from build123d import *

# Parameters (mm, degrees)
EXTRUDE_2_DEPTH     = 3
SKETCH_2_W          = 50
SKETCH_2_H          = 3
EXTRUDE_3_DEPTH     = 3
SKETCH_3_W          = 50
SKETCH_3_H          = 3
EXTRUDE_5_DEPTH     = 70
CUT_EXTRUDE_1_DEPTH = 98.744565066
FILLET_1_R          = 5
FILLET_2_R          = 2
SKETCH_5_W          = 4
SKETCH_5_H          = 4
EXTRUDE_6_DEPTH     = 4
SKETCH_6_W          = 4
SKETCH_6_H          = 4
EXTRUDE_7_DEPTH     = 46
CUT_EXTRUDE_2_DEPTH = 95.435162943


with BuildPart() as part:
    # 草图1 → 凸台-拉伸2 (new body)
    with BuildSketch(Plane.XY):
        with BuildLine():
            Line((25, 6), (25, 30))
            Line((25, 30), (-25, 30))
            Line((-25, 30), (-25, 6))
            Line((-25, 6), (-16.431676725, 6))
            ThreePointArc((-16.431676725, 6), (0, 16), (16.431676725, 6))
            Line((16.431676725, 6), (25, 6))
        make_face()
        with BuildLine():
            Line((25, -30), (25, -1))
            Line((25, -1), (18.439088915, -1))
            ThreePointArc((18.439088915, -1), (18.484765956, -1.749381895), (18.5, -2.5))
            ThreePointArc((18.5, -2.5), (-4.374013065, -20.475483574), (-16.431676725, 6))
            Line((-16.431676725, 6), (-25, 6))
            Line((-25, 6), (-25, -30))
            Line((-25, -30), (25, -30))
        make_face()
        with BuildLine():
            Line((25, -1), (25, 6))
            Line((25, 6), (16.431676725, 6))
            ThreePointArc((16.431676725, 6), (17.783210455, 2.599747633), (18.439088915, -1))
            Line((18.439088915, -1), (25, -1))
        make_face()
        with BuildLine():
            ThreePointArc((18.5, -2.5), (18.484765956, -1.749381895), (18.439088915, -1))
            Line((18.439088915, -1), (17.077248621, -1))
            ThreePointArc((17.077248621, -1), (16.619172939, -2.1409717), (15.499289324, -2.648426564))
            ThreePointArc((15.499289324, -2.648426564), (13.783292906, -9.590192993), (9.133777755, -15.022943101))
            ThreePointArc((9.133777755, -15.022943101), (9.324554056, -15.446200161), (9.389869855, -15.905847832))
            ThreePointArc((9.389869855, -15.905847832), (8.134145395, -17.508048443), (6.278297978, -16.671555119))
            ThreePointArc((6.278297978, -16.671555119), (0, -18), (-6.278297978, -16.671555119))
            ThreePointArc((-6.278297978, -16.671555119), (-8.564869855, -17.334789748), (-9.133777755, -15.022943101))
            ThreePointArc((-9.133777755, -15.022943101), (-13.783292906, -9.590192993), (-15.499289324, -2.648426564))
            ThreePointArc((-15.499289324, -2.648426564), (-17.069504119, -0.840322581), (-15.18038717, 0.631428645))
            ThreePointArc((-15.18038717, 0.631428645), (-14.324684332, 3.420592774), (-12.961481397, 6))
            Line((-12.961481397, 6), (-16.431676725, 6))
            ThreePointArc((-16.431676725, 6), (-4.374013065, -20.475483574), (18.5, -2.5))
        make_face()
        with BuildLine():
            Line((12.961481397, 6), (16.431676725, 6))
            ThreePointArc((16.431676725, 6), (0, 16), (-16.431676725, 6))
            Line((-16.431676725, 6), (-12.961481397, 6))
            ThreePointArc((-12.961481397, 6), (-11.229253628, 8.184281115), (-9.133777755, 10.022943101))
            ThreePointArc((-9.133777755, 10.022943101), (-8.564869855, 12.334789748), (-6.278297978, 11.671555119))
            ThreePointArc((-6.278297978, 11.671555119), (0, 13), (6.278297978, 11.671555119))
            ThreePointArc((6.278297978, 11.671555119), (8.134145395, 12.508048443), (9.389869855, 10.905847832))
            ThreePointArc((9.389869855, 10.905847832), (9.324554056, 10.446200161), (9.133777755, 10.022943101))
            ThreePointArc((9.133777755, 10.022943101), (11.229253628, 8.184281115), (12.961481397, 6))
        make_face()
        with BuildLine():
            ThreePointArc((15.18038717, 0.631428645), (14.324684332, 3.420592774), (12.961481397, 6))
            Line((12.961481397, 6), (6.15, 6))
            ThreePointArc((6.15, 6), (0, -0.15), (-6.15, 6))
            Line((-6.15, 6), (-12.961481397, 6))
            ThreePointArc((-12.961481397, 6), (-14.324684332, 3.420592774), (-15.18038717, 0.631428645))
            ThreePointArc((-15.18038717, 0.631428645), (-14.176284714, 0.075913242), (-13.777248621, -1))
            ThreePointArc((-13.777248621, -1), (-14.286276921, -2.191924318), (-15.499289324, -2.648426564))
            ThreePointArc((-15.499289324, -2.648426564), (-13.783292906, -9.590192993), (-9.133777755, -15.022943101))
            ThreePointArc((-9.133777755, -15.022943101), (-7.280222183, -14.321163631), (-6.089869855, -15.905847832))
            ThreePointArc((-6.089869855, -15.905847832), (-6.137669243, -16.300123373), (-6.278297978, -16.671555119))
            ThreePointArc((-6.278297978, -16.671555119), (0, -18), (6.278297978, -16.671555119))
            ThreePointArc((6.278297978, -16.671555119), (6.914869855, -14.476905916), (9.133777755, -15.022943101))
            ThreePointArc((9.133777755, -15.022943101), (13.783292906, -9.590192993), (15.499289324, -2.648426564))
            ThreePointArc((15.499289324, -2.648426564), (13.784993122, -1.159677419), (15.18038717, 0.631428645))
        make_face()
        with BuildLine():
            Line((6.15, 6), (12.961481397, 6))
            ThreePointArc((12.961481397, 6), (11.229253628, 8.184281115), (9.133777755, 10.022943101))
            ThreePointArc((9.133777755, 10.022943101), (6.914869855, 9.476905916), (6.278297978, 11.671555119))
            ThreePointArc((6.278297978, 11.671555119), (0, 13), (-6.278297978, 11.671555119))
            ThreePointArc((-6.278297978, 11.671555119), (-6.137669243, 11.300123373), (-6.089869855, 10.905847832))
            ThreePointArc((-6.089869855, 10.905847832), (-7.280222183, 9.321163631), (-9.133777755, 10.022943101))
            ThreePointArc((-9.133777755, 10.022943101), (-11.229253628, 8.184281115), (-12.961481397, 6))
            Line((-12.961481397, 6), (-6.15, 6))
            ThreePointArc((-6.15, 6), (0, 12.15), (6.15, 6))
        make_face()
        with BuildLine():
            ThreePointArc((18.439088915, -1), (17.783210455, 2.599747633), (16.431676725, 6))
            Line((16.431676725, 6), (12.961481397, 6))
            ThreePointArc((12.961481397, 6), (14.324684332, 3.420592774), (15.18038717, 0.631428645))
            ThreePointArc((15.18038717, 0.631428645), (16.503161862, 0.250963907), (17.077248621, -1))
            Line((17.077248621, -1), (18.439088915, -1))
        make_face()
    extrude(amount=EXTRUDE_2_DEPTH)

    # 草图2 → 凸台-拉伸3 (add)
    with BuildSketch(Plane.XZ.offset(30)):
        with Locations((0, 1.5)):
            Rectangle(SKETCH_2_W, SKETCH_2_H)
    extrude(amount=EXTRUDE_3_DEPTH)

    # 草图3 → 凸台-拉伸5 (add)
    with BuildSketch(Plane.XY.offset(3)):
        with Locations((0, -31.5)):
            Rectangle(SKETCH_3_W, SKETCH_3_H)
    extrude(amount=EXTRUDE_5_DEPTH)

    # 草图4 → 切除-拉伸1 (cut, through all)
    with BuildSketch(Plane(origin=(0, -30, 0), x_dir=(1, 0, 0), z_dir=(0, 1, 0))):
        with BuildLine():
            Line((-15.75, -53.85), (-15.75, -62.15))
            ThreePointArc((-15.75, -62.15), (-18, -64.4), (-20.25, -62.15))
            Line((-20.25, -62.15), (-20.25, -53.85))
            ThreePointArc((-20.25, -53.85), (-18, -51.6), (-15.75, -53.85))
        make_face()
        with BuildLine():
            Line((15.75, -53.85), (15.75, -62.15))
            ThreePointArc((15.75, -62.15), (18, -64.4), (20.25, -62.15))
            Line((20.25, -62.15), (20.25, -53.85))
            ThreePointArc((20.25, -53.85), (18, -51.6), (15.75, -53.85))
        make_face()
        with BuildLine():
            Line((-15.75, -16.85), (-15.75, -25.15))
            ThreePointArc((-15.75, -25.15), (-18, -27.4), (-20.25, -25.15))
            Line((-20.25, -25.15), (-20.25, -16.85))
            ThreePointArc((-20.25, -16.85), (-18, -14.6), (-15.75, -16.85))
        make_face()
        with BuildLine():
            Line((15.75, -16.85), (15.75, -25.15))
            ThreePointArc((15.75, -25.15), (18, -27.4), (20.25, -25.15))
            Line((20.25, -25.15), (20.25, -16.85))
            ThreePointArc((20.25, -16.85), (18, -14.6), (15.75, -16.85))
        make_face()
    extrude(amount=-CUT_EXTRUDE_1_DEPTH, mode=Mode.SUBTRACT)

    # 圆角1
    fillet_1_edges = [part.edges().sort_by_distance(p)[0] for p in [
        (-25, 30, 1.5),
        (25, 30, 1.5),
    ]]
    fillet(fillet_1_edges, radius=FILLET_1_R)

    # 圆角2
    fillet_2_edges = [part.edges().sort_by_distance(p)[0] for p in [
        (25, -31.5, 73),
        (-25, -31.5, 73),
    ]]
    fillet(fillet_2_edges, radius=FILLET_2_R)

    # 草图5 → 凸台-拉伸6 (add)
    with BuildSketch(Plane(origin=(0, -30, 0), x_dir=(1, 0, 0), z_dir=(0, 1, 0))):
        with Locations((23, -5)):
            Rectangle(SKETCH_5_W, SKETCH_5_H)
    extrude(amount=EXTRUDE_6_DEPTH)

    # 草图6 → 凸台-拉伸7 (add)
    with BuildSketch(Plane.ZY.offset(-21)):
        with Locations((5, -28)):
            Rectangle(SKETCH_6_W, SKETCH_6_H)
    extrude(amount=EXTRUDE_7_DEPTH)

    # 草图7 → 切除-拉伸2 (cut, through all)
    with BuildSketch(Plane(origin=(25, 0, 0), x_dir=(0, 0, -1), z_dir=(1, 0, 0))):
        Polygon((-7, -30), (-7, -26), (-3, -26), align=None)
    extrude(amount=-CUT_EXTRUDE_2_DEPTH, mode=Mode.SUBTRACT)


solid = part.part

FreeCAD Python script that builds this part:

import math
import FreeCAD as App
import Part
import Sketcher


def edges_at(feature, points):
    """Names of the edges that pass closest to the given points."""
    edges = feature.Shape.Edges
    near = lambda p: min(range(len(edges)), key=lambda i: edges[i].distToShape(Part.Vertex(*p))[0])
    return sorted({f"Edge{near(p) + 1}" for p in points})


def add_polygon(sketch, points):
    """Adds a closed chain of lines whose ends are joined by coincident constraints."""
    first, n = sketch.GeometryCount, len(points)
    for a, b in zip(points, points[1:] + points[:1]):
        sketch.addGeometry(Part.LineSegment(App.Vector(*a, 0), App.Vector(*b, 0)), False)
    for i in range(n):
        sketch.addConstraint(Sketcher.Constraint("Coincident", first + i, 2, first + (i + 1) % n, 1))

doc = App.newDocument("Part")
body = doc.addObject("PartDesign::Body", "Body")

sketch1 = doc.addObject("Sketcher::SketchObject", "Sketch")
body.addObject(sketch1)
sketch1.AttachmentSupport = (doc.XY_Plane, [""])
sketch1.MapMode = "FlatFace"
add_polygon(sketch1, [(25, 30), (-25, 30), (-25, -30), (25, -30)])
sketch1.addGeometry(Part.ArcOfCircle(Part.Circle(App.Vector(-7.73987, -15.905848, 0), App.Vector(0, 0, 1), 1.65), math.radians(147.649729), math.radians(332.350271)), False)
sketch1.addGeometry(Part.ArcOfCircle(Part.Circle(App.Vector(-7.73987, -15.905848, 0), App.Vector(0, 0, 1), 1.65), math.radians(0), math.radians(147.649729)), False)
sketch1.addGeometry(Part.ArcOfCircle(Part.Circle(App.Vector(-7.73987, -15.905848, 0), App.Vector(0, 0, 1), 1.65), math.radians(-27.649729), math.radians(0)), False)
sketch1.addGeometry(Part.ArcOfCircle(Part.Circle(App.Vector(7.73987, -15.905848, 0), App.Vector(0, 0, 1), 1.65), math.radians(0), math.radians(32.350271)), False)
sketch1.addGeometry(Part.ArcOfCircle(Part.Circle(App.Vector(7.73987, -15.905848, 0), App.Vector(0, 0, 1), 1.65), math.radians(-152.350271), math.radians(0)), False)
sketch1.addGeometry(Part.ArcOfCircle(Part.Circle(App.Vector(7.73987, -15.905848, 0), App.Vector(0, 0, 1), 1.65), math.radians(32.350271), math.radians(207.649729)), False)
sketch1.addGeometry(Part.ArcOfCircle(Part.Circle(App.Vector(-15.427249, -1, 0), App.Vector(0, 0, 1), 1.65), math.radians(81.3955), math.radians(267.497612)), False)
sketch1.addGeometry(Part.ArcOfCircle(Part.Circle(App.Vector(-15.427249, -1, 0), App.Vector(0, 0, 1), 1.65), math.radians(0), math.radians(81.3955)), False)
sketch1.addGeometry(Part.ArcOfCircle(Part.Circle(App.Vector(-15.427249, -1, 0), App.Vector(0, 0, 1), 1.65), math.radians(-92.502388), math.radians(0)), False)
sketch1.addGeometry(Part.ArcOfCircle(Part.Circle(App.Vector(7.73987, 10.905848, 0), App.Vector(0, 0, 1), 1.65), math.radians(-32.350271), math.radians(0)), False)
sketch1.addGeometry(Part.ArcOfCircle(Part.Circle(App.Vector(7.73987, 10.905848, 0), App.Vector(0, 0, 1), 1.65), math.radians(152.350271), math.radians(327.649729)), False)
sketch1.addGeometry(Part.ArcOfCircle(Part.Circle(App.Vector(7.73987, 10.905848, 0), App.Vector(0, 0, 1), 1.65), math.radians(0), math.radians(152.350271)), False)
sketch1.addGeometry(Part.ArcOfCircle(Part.Circle(App.Vector(-7.73987, 10.905848, 0), App.Vector(0, 0, 1), 1.65), math.radians(27.649729), math.radians(212.350271)), False)
sketch1.addGeometry(Part.ArcOfCircle(Part.Circle(App.Vector(-7.73987, 10.905848, 0), App.Vector(0, 0, 1), 1.65), math.radians(0), math.radians(27.649729)), False)
sketch1.addGeometry(Part.ArcOfCircle(Part.Circle(App.Vector(-7.73987, 10.905848, 0), App.Vector(0, 0, 1), 1.65), math.radians(-147.649729), math.radians(0)), False)
sketch1.addGeometry(Part.Circle(App.Vector(0, 6, 0), App.Vector(0, 0, 1), 6.15), False)
sketch1.addGeometry(Part.ArcOfCircle(Part.Circle(App.Vector(15.427249, -1, 0), App.Vector(0, 0, 1), 1.65), math.radians(-87.497612), math.radians(0)), False)
sketch1.addGeometry(Part.ArcOfCircle(Part.Circle(App.Vector(15.427249, -1, 0), App.Vector(0, 0, 1), 1.65), math.radians(98.6045), math.radians(272.502388)), False)
sketch1.addGeometry(Part.ArcOfCircle(Part.Circle(App.Vector(15.427249, -1, 0), App.Vector(0, 0, 1), 1.65), math.radians(0), math.radians(98.6045)), False)
sketch1.addConstraint(Sketcher.Constraint("Tangent", 4, 1, 5, 2))
sketch1.addConstraint(Sketcher.Constraint("Tangent", 5, 1, 6, 2))
sketch1.addConstraint(Sketcher.Constraint("Tangent", 6, 1, 4, 2))
sketch1.addConstraint(Sketcher.Constraint("Tangent", 7, 1, 8, 2))
sketch1.addConstraint(Sketcher.Constraint("Tangent", 8, 1, 9, 2))
sketch1.addConstraint(Sketcher.Constraint("Tangent", 9, 1, 7, 2))
sketch1.addConstraint(Sketcher.Constraint("Tangent", 10, 1, 11, 2))
sketch1.addConstraint(Sketcher.Constraint("Tangent", 11, 1, 12, 2))
sketch1.addConstraint(Sketcher.Constraint("Tangent", 12, 1, 10, 2))
sketch1.addConstraint(Sketcher.Constraint("Tangent", 13, 1, 14, 2))
sketch1.addConstraint(Sketcher.Constraint("Tangent", 14, 1, 15, 2))
sketch1.addConstraint(Sketcher.Constraint("Tangent", 15, 1, 13, 2))
sketch1.addConstraint(Sketcher.Constraint("Tangent", 16, 1, 17, 2))
sketch1.addConstraint(Sketcher.Constraint("Tangent", 17, 1, 18, 2))
sketch1.addConstraint(Sketcher.Constraint("Tangent", 18, 1, 16, 2))
sketch1.addConstraint(Sketcher.Constraint("Tangent", 20, 1, 21, 2))
sketch1.addConstraint(Sketcher.Constraint("Tangent", 21, 1, 22, 2))
sketch1.addConstraint(Sketcher.Constraint("Tangent", 22, 1, 20, 2))
sketch1.addConstraint(Sketcher.Constraint("Horizontal", 0))
sketch1.addConstraint(Sketcher.Constraint("Vertical", 1))
sketch1.addConstraint(Sketcher.Constraint("Horizontal", 2))
sketch1.addConstraint(Sketcher.Constraint("Vertical", 3))
sketch1.addConstraint(Sketcher.Constraint("Equal", 6, 7))
sketch1.addConstraint(Sketcher.Constraint("Equal", 9, 10))
sketch1.addConstraint(Sketcher.Constraint("Equal", 12, 13))
sketch1.addConstraint(Sketcher.Constraint("Equal", 15, 16))
sketch1.addConstraint(Sketcher.Constraint("Equal", 18, 20))
sketch1.addConstraint(Sketcher.Constraint("Symmetric", 0, 2, 2, 2, -1, 1))
sketch1.addConstraint(Sketcher.Constraint("Symmetric", 4, 3, 7, 3, -2))
sketch1.addConstraint(Sketcher.Constraint("Symmetric", 13, 3, 16, 3, -2))
sketch1.addConstraint(Sketcher.Constraint("Symmetric", 10, 3, 20, 3, -2))
sketch1.addConstraint(Sketcher.Constraint("PointOnObject", 19, 3, -2))
sketch1.addConstraint(Sketcher.Constraint("Horizontal", 9, 3, 5, 1))
sketch1.addConstraint(Sketcher.Constraint("Horizontal", 5, 1, 7, 1))
sketch1.addConstraint(Sketcher.Constraint("Horizontal", 6, 1, 8, 1))
sketch1.addConstraint(Sketcher.Constraint("Horizontal", 4, 1, 9, 1))
sketch1.addConstraint(Sketcher.Constraint("Horizontal", 22, 3, 11, 1))
sketch1.addConstraint(Sketcher.Constraint("Horizontal", 18, 3, 15, 1))
sketch1.addConstraint(Sketcher.Constraint("Horizontal", 14, 1, 16, 1))
sketch1.addConstraint(Sketcher.Constraint("Horizontal", 15, 1, 17, 1))
sketch1.addConstraint(Sketcher.Constraint("Horizontal", 13, 1, 18, 1))
sketch1.addConstraint(Sketcher.Constraint("Horizontal", 12, 1, 20, 1))
sketch1.addConstraint(Sketcher.Constraint("Horizontal", 10, 1, 21, 1))
sketch1.addConstraint(Sketcher.Constraint("Horizontal", 11, 1, 22, 1))
sketch1.addConstraint(Sketcher.Constraint("Vertical", 9, 3, 13, 3))
sketch1.addConstraint(Sketcher.Constraint("Vertical", 9, 1, 13, 1))
sketch1.addConstraint(Sketcher.Constraint("Vertical", 8, 1, 14, 1))
sketch1.addConstraint(Sketcher.Constraint("Diameter", 19, 12.3))
sketch1.addConstraint(Sketcher.Constraint("DistanceX", 0, 2, 0, 1, 50.0))
sketch1.addConstraint(Sketcher.Constraint("DistanceY", 1, 2, 1, 1, 60.0))
sketch1.addConstraint(Sketcher.Constraint("Radius", 4, 1.65))
sketch1.addConstraint(Sketcher.Constraint("DistanceY", 10, 3, -1, 1, 1.0))
sketch1.addConstraint(Sketcher.Constraint("DistanceY", -1, 1, 19, 3, 6.0))
sketch1.addConstraint(Sketcher.Constraint("DistanceX", 4, 3, -1, 1, 7.73987))
sketch1.addConstraint(Sketcher.Constraint("DistanceX", 10, 3, -1, 1, 15.427249))
sketch1.addConstraint(Sketcher.Constraint("DistanceY", -1, 1, 10, 1, 0.631429))
sketch1.addConstraint(Sketcher.Constraint("DistanceX", 12, 1, -1, 1, 15.499289))
sketch1.addConstraint(Sketcher.Constraint("DistanceX", 10, 3, 4, 1, 6.293471))
sketch1.addConstraint(Sketcher.Constraint("DistanceX", 6, 1, 5, 1, 0.188428))
sketch1.addConstraint(Sketcher.Constraint("DistanceY", 10, 1, 16, 3, 10.274419))
sketch1.addConstraint(Sketcher.Constraint("DistanceY", 4, 3, -1, 1, 15.905848))
pad1 = doc.addObject("PartDesign::Pad", "Pad")
body.addObject(pad1)
pad1.Profile = sketch1
pad1.Length = 3

sketch2 = doc.addObject("Sketcher::SketchObject", "Sketch001")
body.addObject(sketch2)
sketch2.AttachmentSupport = (doc.XZ_Plane, [""])
sketch2.MapMode = "FlatFace"
sketch2.AttachmentOffset = App.Placement(App.Vector(0, 0, 30), App.Rotation())
add_polygon(sketch2, [(-25, 3), (-25, 0), (25, 0), (25, 3)])
sketch2.addConstraint(Sketcher.Constraint("Vertical", 0))
sketch2.addConstraint(Sketcher.Constraint("Horizontal", 1))
sketch2.addConstraint(Sketcher.Constraint("Vertical", 2))
sketch2.addConstraint(Sketcher.Constraint("Horizontal", 3))
sketch2.addConstraint(Sketcher.Constraint("Symmetric", 0, 2, 1, 2, -1, 1))
sketch2.addConstraint(Sketcher.Constraint("DistanceX", 1, 1, 1, 2, 50.0))
sketch2.addConstraint(Sketcher.Constraint("DistanceY", 0, 2, 0, 1, 3.0))
pad2 = doc.addObject("PartDesign::Pad", "Pad001")
body.addObject(pad2)
pad2.Profile = sketch2
pad2.Length = 3

sketch3 = doc.addObject("Sketcher::SketchObject", "Sketch002")
body.addObject(sketch3)
sketch3.AttachmentSupport = (doc.XY_Plane, [""])
sketch3.MapMode = "FlatFace"
sketch3.AttachmentOffset = App.Placement(App.Vector(0, 0, 3), App.Rotation())
add_polygon(sketch3, [(-25, -30), (-25, -33), (25, -33), (25, -30)])
sketch3.addConstraint(Sketcher.Constraint("Vertical", 0))
sketch3.addConstraint(Sketcher.Constraint("Horizontal", 1))
sketch3.addConstraint(Sketcher.Constraint("Vertical", 2))
sketch3.addConstraint(Sketcher.Constraint("Horizontal", 3))
sketch3.addConstraint(Sketcher.Constraint("DistanceX", 1, 1, 1, 2, 50.0))
sketch3.addConstraint(Sketcher.Constraint("DistanceY", 0, 2, 0, 1, 3.0))
sketch3.addConstraint(Sketcher.Constraint("DistanceX", 0, 2, -1, 1, 25.0))
sketch3.addConstraint(Sketcher.Constraint("DistanceY", 0, 2, -1, 1, 33.0))
pad3 = doc.addObject("PartDesign::Pad", "Pad002")
body.addObject(pad3)
pad3.Profile = sketch3
pad3.Length = 70

sketch4 = doc.addObject("Sketcher::SketchObject", "Sketch003")
body.addObject(sketch4)
sketch4.AttachmentSupport = (doc.XZ_Plane, [""])
sketch4.MapMode = "FlatFace"
sketch4.AttachmentOffset = App.Placement(App.Vector(0, 0, 30), App.Rotation())
sketch4.addGeometry(Part.LineSegment(App.Vector(-15.75, 62.15, 0), App.Vector(-15.75, 53.85, 0)), False)
sketch4.addGeometry(Part.ArcOfCircle(Part.Circle(App.Vector(-18, 53.85, 0), App.Vector(0, 0, 1), 2.25), math.radians(180), math.radians(360)), False)
sketch4.addGeometry(Part.LineSegment(App.Vector(-20.25, 53.85, 0), App.Vector(-20.25, 62.15, 0)), False)
sketch4.addGeometry(Part.ArcOfCircle(Part.Circle(App.Vector(-18, 62.15, 0), App.Vector(0, 0, 1), 2.25), math.radians(0), math.radians(180)), False)
sketch4.addGeometry(Part.LineSegment(App.Vector(15.75, 53.85, 0), App.Vector(15.75, 62.15, 0)), False)
sketch4.addGeometry(Part.ArcOfCircle(Part.Circle(App.Vector(18, 62.15, 0), App.Vector(0, 0, 1), 2.25), math.radians(0), math.radians(180)), False)
sketch4.addGeometry(Part.LineSegment(App.Vector(20.25, 62.15, 0), App.Vector(20.25, 53.85, 0)), False)
sketch4.addGeometry(Part.ArcOfCircle(Part.Circle(App.Vector(18, 53.85, 0), App.Vector(0, 0, 1), 2.25), math.radians(180), math.radians(360)), False)
sketch4.addGeometry(Part.LineSegment(App.Vector(-15.75, 25.15, 0), App.Vector(-15.75, 16.85, 0)), False)
sketch4.addGeometry(Part.ArcOfCircle(Part.Circle(App.Vector(-18, 16.85, 0), App.Vector(0, 0, 1), 2.25), math.radians(180), math.radians(360)), False)
sketch4.addGeometry(Part.LineSegment(App.Vector(-20.25, 16.85, 0), App.Vector(-20.25, 25.15, 0)), False)
sketch4.addGeometry(Part.ArcOfCircle(Part.Circle(App.Vector(-18, 25.15, 0), App.Vector(0, 0, 1), 2.25), math.radians(0), math.radians(180)), False)
sketch4.addGeometry(Part.LineSegment(App.Vector(15.75, 16.85, 0), App.Vector(15.75, 25.15, 0)), False)
sketch4.addGeometry(Part.ArcOfCircle(Part.Circle(App.Vector(18, 25.15, 0), App.Vector(0, 0, 1), 2.25), math.radians(0), math.radians(180)), False)
sketch4.addGeometry(Part.LineSegment(App.Vector(20.25, 25.15, 0), App.Vector(20.25, 16.85, 0)), False)
sketch4.addGeometry(Part.ArcOfCircle(Part.Circle(App.Vector(18, 16.85, 0), App.Vector(0, 0, 1), 2.25), math.radians(180), math.radians(360)), False)
sketch4.addConstraint(Sketcher.Constraint("Tangent", 0, 2, 1, 2))
sketch4.addConstraint(Sketcher.Constraint("Tangent", 1, 1, 2, 1))
sketch4.addConstraint(Sketcher.Constraint("Tangent", 2, 2, 3, 2))
sketch4.addConstraint(Sketcher.Constraint("Tangent", 3, 1, 0, 1))
sketch4.addConstraint(Sketcher.Constraint("Tangent", 4, 2, 5, 2))
sketch4.addConstraint(Sketcher.Constraint("Tangent", 5, 1, 6, 1))
sketch4.addConstraint(Sketcher.Constraint("Tangent", 6, 2, 7, 2))
sketch4.addConstraint(Sketcher.Constraint("Tangent", 7, 1, 4, 1))
sketch4.addConstraint(Sketcher.Constraint("Tangent", 8, 2, 9, 2))
sketch4.addConstraint(Sketcher.Constraint("Tangent", 9, 1, 10, 1))
sketch4.addConstraint(Sketcher.Constraint("Tangent", 10, 2, 11, 2))
sketch4.addConstraint(Sketcher.Constraint("Tangent", 11, 1, 8, 1))
sketch4.addConstraint(Sketcher.Constraint("Tangent", 12, 2, 13, 2))
sketch4.addConstraint(Sketcher.Constraint("Tangent", 13, 1, 14, 1))
sketch4.addConstraint(Sketcher.Constraint("Tangent", 14, 2, 15, 2))
sketch4.addConstraint(Sketcher.Constraint("Tangent", 15, 1, 12, 1))
sketch4.addConstraint(Sketcher.Constraint("Vertical", 0))
sketch4.addConstraint(Sketcher.Constraint("Vertical", 2))
sketch4.addConstraint(Sketcher.Constraint("Vertical", 4))
sketch4.addConstraint(Sketcher.Constraint("Vertical", 6))
sketch4.addConstraint(Sketcher.Constraint("Vertical", 8))
sketch4.addConstraint(Sketcher.Constraint("Vertical", 10))
sketch4.addConstraint(Sketcher.Constraint("Vertical", 12))
sketch4.addConstraint(Sketcher.Constraint("Vertical", 14))
sketch4.addConstraint(Sketcher.Constraint("Equal", 3, 5))
sketch4.addConstraint(Sketcher.Constraint("Equal", 7, 9))
sketch4.addConstraint(Sketcher.Constraint("Equal", 11, 13))
sketch4.addConstraint(Sketcher.Constraint("Symmetric", 3, 3, 5, 3, -2))
sketch4.addConstraint(Sketcher.Constraint("Symmetric", 11, 3, 13, 3, -2))
sketch4.addConstraint(Sketcher.Constraint("Horizontal", 1, 3, 7, 3))
sketch4.addConstraint(Sketcher.Constraint("Horizontal", 9, 3, 15, 3))
sketch4.addConstraint(Sketcher.Constraint("Vertical", 3, 3, 9, 3))
sketch4.addConstraint(Sketcher.Constraint("Equal", 6, 8))
sketch4.addConstraint(Sketcher.Constraint("Radius", 1, 2.25))
sketch4.addConstraint(Sketcher.Constraint("DistanceY", 0, 2, 0, 1, 8.3))
sketch4.addConstraint(Sketcher.Constraint("DistanceX", 1, 3, -1, 1, 18.0))
sketch4.addConstraint(Sketcher.Constraint("DistanceY", 9, 3, 1, 3, 37.0))
sketch4.addConstraint(Sketcher.Constraint("DistanceY", -1, 1, 1, 3, 53.85))
pocket1 = doc.addObject("PartDesign::Pocket", "Pocket")
body.addObject(pocket1)
pocket1.Profile = sketch4
pocket1.Type = "ThroughAll"
pocket1.Reversed = True
doc.recompute()

fillet = doc.addObject("PartDesign::Fillet", "Fillet")
body.addObject(fillet)
fillet.Base = (pocket1, edges_at(pocket1, [(-25, 30, 1.5), (25, 30, 1.5)]))
fillet.Radius = 5
doc.recompute()

fillet2 = doc.addObject("PartDesign::Fillet", "Fillet001")
body.addObject(fillet2)
fillet2.Base = (fillet, edges_at(fillet, [(25, -31.5, 73), (-25, -31.5, 73)]))
fillet2.Radius = 2

sketch5 = doc.addObject("Sketcher::SketchObject", "Sketch004")
body.addObject(sketch5)
sketch5.AttachmentSupport = (doc.XZ_Plane, [""])
sketch5.MapMode = "FlatFace"
sketch5.AttachmentOffset = App.Placement(App.Vector(0, 0, 30), App.Rotation())
add_polygon(sketch5, [(21, 3), (21, 7), (25, 7), (25, 3)])
sketch5.addConstraint(Sketcher.Constraint("Vertical", 0))
sketch5.addConstraint(Sketcher.Constraint("Horizontal", 1))
sketch5.addConstraint(Sketcher.Constraint("Vertical", 2))
sketch5.addConstraint(Sketcher.Constraint("Horizontal", 3))
sketch5.addConstraint(Sketcher.Constraint("Equal", 3, 0))
sketch5.addConstraint(Sketcher.Constraint("DistanceX", 1, 1, 1, 2, 4.0))
sketch5.addConstraint(Sketcher.Constraint("DistanceX", -1, 1, 0, 2, 21.0))
sketch5.addConstraint(Sketcher.Constraint("DistanceY", -1, 1, 0, 2, 7.0))
pad4 = doc.addObject("PartDesign::Pad", "Pad003")
body.addObject(pad4)
pad4.Profile = sketch5
pad4.Length = 4
pad4.Reversed = True

sketch6 = doc.addObject("Sketcher::SketchObject", "Sketch005")
body.addObject(sketch6)
sketch6.AttachmentSupport = (doc.YZ_Plane, [""])
sketch6.MapMode = "FlatFace"
sketch6.AttachmentOffset = App.Placement(App.Vector(0, 0, 21), App.Rotation())
add_polygon(sketch6, [(-26, 3), (-30, 3), (-30, 7), (-26, 7)])
sketch6.addConstraint(Sketcher.Constraint("Horizontal", 0))
sketch6.addConstraint(Sketcher.Constraint("Vertical", 1))
sketch6.addConstraint(Sketcher.Constraint("Horizontal", 2))
sketch6.addConstraint(Sketcher.Constraint("Vertical", 3))
sketch6.addConstraint(Sketcher.Constraint("Equal", 2, 1))
sketch6.addConstraint(Sketcher.Constraint("DistanceX", 0, 2, 0, 1, 4.0))
sketch6.addConstraint(Sketcher.Constraint("DistanceX", 0, 2, -1, 1, 30.0))
sketch6.addConstraint(Sketcher.Constraint("DistanceY", -1, 1, 0, 2, 3.0))
pad5 = doc.addObject("PartDesign::Pad", "Pad004")
body.addObject(pad5)
pad5.Profile = sketch6
pad5.Length = 46
pad5.Reversed = True

sketch7 = doc.addObject("Sketcher::SketchObject", "Sketch006")
body.addObject(sketch7)
sketch7.AttachmentSupport = (doc.YZ_Plane, [""])
sketch7.MapMode = "FlatFace"
sketch7.AttachmentOffset = App.Placement(App.Vector(0, 0, 25), App.Rotation())
add_polygon(sketch7, [(-26, 7), (-30, 7), (-26, 3)])
sketch7.addConstraint(Sketcher.Constraint("Horizontal", 0))
sketch7.addConstraint(Sketcher.Constraint("Vertical", 2))
sketch7.addConstraint(Sketcher.Constraint("Equal", 0, 2))
sketch7.addConstraint(Sketcher.Constraint("DistanceX", 0, 2, 0, 1, 4.0))
sketch7.addConstraint(Sketcher.Constraint("DistanceX", 0, 2, -1, 1, 30.0))
sketch7.addConstraint(Sketcher.Constraint("DistanceY", -1, 1, 0, 2, 7.0))
pocket2 = doc.addObject("PartDesign::Pocket", "Pocket001")
body.addObject(pocket2)
pocket2.Profile = sketch7
pocket2.Type = "ThroughAll"

doc.recompute()
